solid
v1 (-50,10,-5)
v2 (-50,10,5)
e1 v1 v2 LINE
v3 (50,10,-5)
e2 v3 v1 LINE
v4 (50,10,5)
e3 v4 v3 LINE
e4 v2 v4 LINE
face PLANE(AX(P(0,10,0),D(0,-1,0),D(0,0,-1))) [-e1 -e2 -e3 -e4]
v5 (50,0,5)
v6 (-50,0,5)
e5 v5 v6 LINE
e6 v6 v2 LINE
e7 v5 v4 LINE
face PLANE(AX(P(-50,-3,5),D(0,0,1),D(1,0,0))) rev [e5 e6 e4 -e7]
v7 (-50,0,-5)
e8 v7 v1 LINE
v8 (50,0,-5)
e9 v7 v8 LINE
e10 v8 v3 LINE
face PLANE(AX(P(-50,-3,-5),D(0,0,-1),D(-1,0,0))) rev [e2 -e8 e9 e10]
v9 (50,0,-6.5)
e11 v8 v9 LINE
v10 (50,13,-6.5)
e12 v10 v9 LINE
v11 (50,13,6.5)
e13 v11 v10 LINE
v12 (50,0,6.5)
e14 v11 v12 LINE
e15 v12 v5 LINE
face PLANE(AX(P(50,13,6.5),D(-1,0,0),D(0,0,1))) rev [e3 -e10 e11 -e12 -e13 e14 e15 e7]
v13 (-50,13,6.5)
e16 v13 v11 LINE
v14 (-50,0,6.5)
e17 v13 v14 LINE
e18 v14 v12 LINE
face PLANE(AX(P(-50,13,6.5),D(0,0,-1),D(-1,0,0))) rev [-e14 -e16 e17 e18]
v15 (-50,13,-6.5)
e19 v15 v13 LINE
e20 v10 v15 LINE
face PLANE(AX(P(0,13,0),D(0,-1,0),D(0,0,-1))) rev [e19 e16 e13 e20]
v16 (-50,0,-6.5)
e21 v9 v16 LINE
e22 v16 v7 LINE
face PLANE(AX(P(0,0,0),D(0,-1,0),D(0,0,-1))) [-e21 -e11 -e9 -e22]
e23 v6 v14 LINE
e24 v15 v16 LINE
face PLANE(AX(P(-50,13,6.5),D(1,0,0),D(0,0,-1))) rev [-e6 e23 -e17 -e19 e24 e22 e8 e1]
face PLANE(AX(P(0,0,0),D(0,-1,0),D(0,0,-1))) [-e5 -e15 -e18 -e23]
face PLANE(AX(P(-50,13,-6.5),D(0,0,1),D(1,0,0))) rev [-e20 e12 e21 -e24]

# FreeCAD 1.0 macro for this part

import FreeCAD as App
import Part
import Sketcher

V = App.Vector


def add_polygon(sketch, points):
    """Adds a closed chain of lines whose ends are joined by coincident constraints."""
    first, n = sketch.GeometryCount, len(points)
    for a, b in zip(points, points[1:] + points[:1]):
        sketch.addGeometry(Part.LineSegment(App.Vector(*a, 0), App.Vector(*b, 0)), False)
    for i in range(n):
        sketch.addConstraint(Sketcher.Constraint("Coincident", first + i, 2, first + (i + 1) % n, 1))

doc = App.newDocument("Part")
params = doc.addObject("Spreadsheet::Sheet", "Params")
for row, (alias, value) in enumerate([
    ("sketch1_width", "100 mm"),
    ("sketch1_height", "13 mm"),
    ("pad1_length", "13 mm"),
    ("sketch2_width", "100 mm"),
    ("sketch2_height", "10 mm"),
    ("pocket1_length", "13 mm"),
], start=1):
    params.set(f"A{row}", alias)
    params.set(f"B{row}", "=" + value)
    params.setAlias(f"B{row}", alias)

body = doc.addObject("PartDesign::Body", "Body")

sketch1 = doc.addObject("Sketcher::SketchObject", "Sketch")
body.addObject(sketch1)
sketch1.AttachmentSupport = (doc.XZ_Plane, [""])
sketch1.MapMode = "FlatFace"
add_polygon(sketch1, [(-50, -6), (-50, 6), (50, 6), (50, -6)])
sketch1.addConstraint([
    Sketcher.Constraint("Vertical", 0),
    Sketcher.Constraint("Horizontal", 1),
    Sketcher.Constraint("Vertical", 2),
    Sketcher.Constraint("Horizontal", 3),
    Sketcher.Constraint("Symmetric", 0, 2, 2, 2, -1, 1),
    Sketcher.Constraint("DistanceX", 1, 1, 1, 2, 100.0),
    Sketcher.Constraint("DistanceY", 0, 1, 0, 2, 13.0),
])
sketch1.setExpression("Constraints[9]", "Params.sketch1_width")
sketch1.setExpression("Constraints[10]", "Params.sketch1_height")
pad1 = doc.addObject("PartDesign::Pad", "Pad")
body.addObject(pad1)
pad1.Profile = sketch1
pad1.setExpression("Length", "Params.pad1_length")
pad1.Reversed = True

sketch2 = doc.addObject("Sketcher::SketchObject", "Sketch001")
body.addObject(sketch2)
sketch2.AttachmentSupport = (doc.XZ_Plane, [""])
sketch2.MapMode = "FlatFace"
sketch2.AttachmentOffset = App.Placement(V(0, 0, -10), App.Rotation())
add_polygon(sketch2, [(-50, -5), (-50, 5), (50, 5), (50, -5)])
sketch2.addConstraint([
    Sketcher.Constraint("Vertical", 0),
    Sketcher.Constraint("Horizontal", 1),
    Sketcher.Constraint("Vertical", 2),
    Sketcher.Constraint("Horizontal", 3),
    Sketcher.Constraint("Symmetric", 0, 2, 2, 2, -1, 1),
    Sketcher.Constraint("DistanceX", 1, 1, 1, 2, 100.0),
    Sketcher.Constraint("DistanceY", 0, 1, 0, 2, 10.0),
])
sketch2.setExpression("Constraints[9]", "Params.sketch2_width")
sketch2.setExpression("Constraints[10]", "Params.sketch2_height")
pocket1 = doc.addObject("PartDesign::Pocket", "Pocket")
body.addObject(pocket1)
pocket1.Profile = sketch2
pocket1.setExpression("Length", "Params.pocket1_length")
pocket1.Reversed = True

doc.recompute()
